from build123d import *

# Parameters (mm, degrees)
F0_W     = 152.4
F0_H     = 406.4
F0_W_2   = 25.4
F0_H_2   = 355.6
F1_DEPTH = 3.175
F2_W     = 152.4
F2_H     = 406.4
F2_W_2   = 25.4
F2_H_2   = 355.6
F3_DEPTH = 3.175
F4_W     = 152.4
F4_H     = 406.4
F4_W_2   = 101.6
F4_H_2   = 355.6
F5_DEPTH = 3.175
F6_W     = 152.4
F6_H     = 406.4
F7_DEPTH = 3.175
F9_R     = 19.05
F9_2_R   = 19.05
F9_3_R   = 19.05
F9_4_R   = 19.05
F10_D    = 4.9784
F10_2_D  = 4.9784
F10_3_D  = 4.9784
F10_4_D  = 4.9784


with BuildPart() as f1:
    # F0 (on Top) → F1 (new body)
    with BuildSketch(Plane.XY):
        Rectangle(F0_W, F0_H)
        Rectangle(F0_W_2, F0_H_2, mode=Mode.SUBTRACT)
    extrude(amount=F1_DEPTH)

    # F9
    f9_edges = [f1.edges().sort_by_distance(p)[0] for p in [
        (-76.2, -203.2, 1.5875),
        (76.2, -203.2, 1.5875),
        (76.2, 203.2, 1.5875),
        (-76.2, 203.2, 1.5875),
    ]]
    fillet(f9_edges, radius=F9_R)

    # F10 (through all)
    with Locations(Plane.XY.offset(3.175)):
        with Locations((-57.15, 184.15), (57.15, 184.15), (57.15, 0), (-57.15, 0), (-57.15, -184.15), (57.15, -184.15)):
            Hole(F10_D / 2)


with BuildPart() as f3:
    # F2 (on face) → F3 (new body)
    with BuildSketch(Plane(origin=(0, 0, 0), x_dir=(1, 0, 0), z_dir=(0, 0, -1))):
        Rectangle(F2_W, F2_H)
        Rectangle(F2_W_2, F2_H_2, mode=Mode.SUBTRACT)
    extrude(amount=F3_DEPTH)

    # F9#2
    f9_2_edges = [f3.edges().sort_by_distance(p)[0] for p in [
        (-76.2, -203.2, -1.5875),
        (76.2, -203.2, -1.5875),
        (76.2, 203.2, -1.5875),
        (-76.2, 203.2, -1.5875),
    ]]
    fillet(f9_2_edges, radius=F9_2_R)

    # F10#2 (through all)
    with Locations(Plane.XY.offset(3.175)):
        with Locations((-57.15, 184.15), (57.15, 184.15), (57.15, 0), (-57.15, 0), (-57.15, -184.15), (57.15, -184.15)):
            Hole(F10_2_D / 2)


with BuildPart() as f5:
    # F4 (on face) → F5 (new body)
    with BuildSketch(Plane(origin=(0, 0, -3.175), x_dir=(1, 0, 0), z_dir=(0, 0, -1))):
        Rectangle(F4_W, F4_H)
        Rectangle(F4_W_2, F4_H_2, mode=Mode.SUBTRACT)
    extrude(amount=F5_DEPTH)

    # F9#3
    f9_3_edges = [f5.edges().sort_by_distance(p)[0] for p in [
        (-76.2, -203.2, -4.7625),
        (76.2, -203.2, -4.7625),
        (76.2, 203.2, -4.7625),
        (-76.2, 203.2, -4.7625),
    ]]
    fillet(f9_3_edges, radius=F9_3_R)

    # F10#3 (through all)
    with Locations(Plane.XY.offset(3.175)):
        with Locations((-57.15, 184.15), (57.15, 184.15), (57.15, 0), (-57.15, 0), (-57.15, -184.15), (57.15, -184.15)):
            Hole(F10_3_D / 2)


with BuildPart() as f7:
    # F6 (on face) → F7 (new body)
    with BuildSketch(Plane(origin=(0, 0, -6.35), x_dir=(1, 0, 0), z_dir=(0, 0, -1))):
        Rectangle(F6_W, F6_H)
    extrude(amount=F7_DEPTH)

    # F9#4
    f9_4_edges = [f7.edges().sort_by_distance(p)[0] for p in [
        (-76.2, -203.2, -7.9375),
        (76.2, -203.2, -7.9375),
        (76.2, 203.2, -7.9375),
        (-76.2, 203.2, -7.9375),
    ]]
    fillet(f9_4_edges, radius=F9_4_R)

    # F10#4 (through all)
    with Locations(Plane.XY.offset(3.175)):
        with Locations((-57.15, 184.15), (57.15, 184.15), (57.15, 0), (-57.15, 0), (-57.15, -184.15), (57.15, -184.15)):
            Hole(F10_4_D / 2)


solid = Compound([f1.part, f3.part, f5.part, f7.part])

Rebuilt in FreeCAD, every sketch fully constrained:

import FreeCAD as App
import Part
import Sketcher
from FreeCAD import Vector
Q = App.Units.Quantity


def edges_at(feature, points):
    """Names of the edges that pass closest to the given points."""
    edges = feature.Shape.Edges
    near = lambda p: min(range(len(edges)), key=lambda i: edges[i].distToShape(Part.Vertex(*p))[0])
    return sorted({f"Edge{near(p) + 1}" for p in points})


def add_polygon(sketch, points):
    """Adds a closed chain of lines whose ends are joined by coincident constraints."""
    first, n = sketch.GeometryCount, len(points)
    for a, b in zip(points, points[1:] + points[:1]):
        sketch.addGeometry(Part.LineSegment(App.Vector(*a, 0), App.Vector(*b, 0)), False)
    for i in range(n):
        sketch.addConstraint(Sketcher.Constraint("Coincident", first + i, 2, first + (i + 1) % n, 1))

doc = App.newDocument("Part")
body = doc.addObject("PartDesign::Body", "Body")

sketch1 = doc.addObject("Sketcher::SketchObject", "Sketch")
body.addObject(sketch1)
sketch1.AttachmentSupport = (doc.XY_Plane, [""])
sketch1.MapMode = "FlatFace"
add_polygon(sketch1, [(-76, 203), (-76, -203), (76, -203), (76, 203)])
add_polygon(sketch1, [(13, -178), (-13, -178), (-13, 178), (13, 178)])
sketch1.addConstraint([
    Sketcher.Constraint("Vertical", 0),
    Sketcher.Constraint("Horizontal", 1),
    Sketcher.Constraint("Vertical", 2),
    Sketcher.Constraint("Horizontal", 3),
    Sketcher.Constraint("Horizontal", 4),
    Sketcher.Constraint("Vertical", 5),
    Sketcher.Constraint("Horizontal", 6),
    Sketcher.Constraint("Vertical", 7),
    Sketcher.Constraint("Symmetric", 0, 2, 2, 2, -1, 1),
    Sketcher.Constraint("Symmetric", 4, 2, 6, 2, -1, 1),
    Sketcher.Constraint("DistanceX", 1, 1, 1, 2, Q("6 in")),
    Sketcher.Constraint("DistanceX", 4, 2, 4, 1, Q("1 in")),
    Sketcher.Constraint("DistanceY", 0, 2, 0, 1, Q("16 in")),
    Sketcher.Constraint("DistanceY", 5, 1, 5, 2, Q("14 in")),
])
pad1 = doc.addObject("PartDesign::Pad", "Pad")
body.addObject(pad1)
pad1.Profile = sketch1
pad1.Length = Q("0.125 in")
doc.recompute()

fillet = doc.addObject("PartDesign::Fillet", "Fillet")
body.addObject(fillet)
fillet.Base = (pad1, edges_at(pad1, [
    (-76.2, -203.2, 1.587),
    (76.2, -203.2, 1.587),
    (76.2, 203.2, 1.587),
    (-76.2, 203.2, 1.587),
]))
fillet.Radius = Q("0.75 in")

sketch2 = doc.addObject("Sketcher::SketchObject", "Sketch001")
body.addObject(sketch2)
sketch2.AttachmentSupport = (doc.XY_Plane, [""])
sketch2.MapMode = "FlatFace"
sketch2.AttachmentOffset = App.Placement(Vector(0, 0, 0.125 * 25.4), App.Rotation())
sketch2.addGeometry([
    Part.Circle(Vector(-57.1, 184.2, 0), Vector(0, 0, 1), 2.5),
    Part.Circle(Vector(57.1, 184.2, 0), Vector(0, 0, 1), 2.5),
    Part.Circle(Vector(57.1, 0, 0), Vector(0, 0, 1), 2.5),
    Part.Circle(Vector(-57.1, 0, 0), Vector(0, 0, 1), 2.5),
    Part.Circle(Vector(-57.1, -184.2, 0), Vector(0, 0, 1), 2.5),
    Part.Circle(Vector(57.1, -184.2, 0), Vector(0, 0, 1), 2.5),
], False)
sketch2.addConstraint([
    Sketcher.Constraint("Equal", 0, 1),
    Sketcher.Constraint("Equal", 1, 2),
    Sketcher.Constraint("Equal", 2, 3),
    Sketcher.Constraint("Equal", 3, 4),
    Sketcher.Constraint("Equal", 4, 5),
    Sketcher.Constraint("Symmetric", 2, 3, 3, 3, -1, 1),
    Sketcher.Constraint("Symmetric", 1, 3, 4, 3, -1, 1),
    Sketcher.Constraint("Symmetric", 0, 3, 5, 3, -1, 1),
    Sketcher.Constraint("Symmetric", 0, 3, 1, 3, -2),
    Sketcher.Constraint("PointOnObject", 2, 3, -1),
    Sketcher.Constraint("Vertical", 1, 3, 2, 3),
    Sketcher.Constraint("Diameter", 0, Q("0.196 in")),
    Sketcher.Constraint("DistanceX", 0, 3, 1, 3, Q("4.5 in")),
    Sketcher.Constraint("DistanceY", 4, 3, 0, 3, Q("14.5 in")),
])
doc.recompute()
hole = doc.addObject("PartDesign::Hole", "Hole")
body.addObject(hole)
hole.Profile = sketch2
hole.ThreadType = "None"
hole.Diameter = Q("0.196 in")
hole.DepthType = "ThroughAll"
body2 = doc.addObject("PartDesign::Body", "Body001")

sketch3 = doc.addObject("Sketcher::SketchObject", "Sketch002")
body2.addObject(sketch3)
sketch3.AttachmentSupport = (doc.getObject("XY_Plane001"), [""])
sketch3.MapMode = "FlatFace"
add_polygon(sketch3, [(-76, -203), (-76, 203), (76, 203), (76, -203)])
add_polygon(sketch3, [(13, 178), (-13, 178), (-13, -178), (13, -178)])
sketch3.addConstraint([
    Sketcher.Constraint("Vertical", 0),
    Sketcher.Constraint("Horizontal", 1),
    Sketcher.Constraint("Vertical", 2),
    Sketcher.Constraint("Horizontal", 3),
    Sketcher.Constraint("Horizontal", 4),
    Sketcher.Constraint("Vertical", 5),
    Sketcher.Constraint("Horizontal", 6),
    Sketcher.Constraint("Vertical", 7),
    Sketcher.Constraint("Symmetric", 0, 2, 2, 2, -1, 1),
    Sketcher.Constraint("Symmetric", 4, 2, 6, 2, -1, 1),
    Sketcher.Constraint("DistanceX", 1, 1, 1, 2, Q("6 in")),
    Sketcher.Constraint("DistanceX", 4, 2, 4, 1, Q("1 in")),
    Sketcher.Constraint("DistanceY", 0, 1, 0, 2, Q("16 in")),
    Sketcher.Constraint("DistanceY", 5, 2, 5, 1, Q("14 in")),
])
pad2 = doc.addObject("PartDesign::Pad", "Pad001")
body2.addObject(pad2)
pad2.Profile = sketch3
pad2.Length = Q("0.125 in")
pad2.Reversed = True
doc.recompute()

fillet2 = doc.addObject("PartDesign::Fillet", "Fillet001")
body2.addObject(fillet2)
fillet2.Base = (pad2, edges_at(pad2, [
    (-76.2, -203.2, -1.587),
    (76.2, -203.2, -1.587),
    (76.2, 203.2, -1.587),
    (-76.2, 203.2, -1.587),
]))
fillet2.Radius = Q("0.75 in")

sketch4 = doc.addObject("Sketcher::SketchObject", "Sketch003")
body2.addObject(sketch4)
sketch4.AttachmentSupport = (doc.getObject("XY_Plane001"), [""])
sketch4.MapMode = "FlatFace"
sketch4.AttachmentOffset = App.Placement(Vector(0, 0, 0.125 * 25.4), App.Rotation())
sketch4.addGeometry([
    Part.Circle(Vector(-57.1, 184.2, 0), Vector(0, 0, 1), 2.5),
    Part.Circle(Vector(57.1, 184.2, 0), Vector(0, 0, 1), 2.5),
    Part.Circle(Vector(57.1, 0, 0), Vector(0, 0, 1), 2.5),
    Part.Circle(Vector(-57.1, 0, 0), Vector(0, 0, 1), 2.5),
    Part.Circle(Vector(-57.1, -184.2, 0), Vector(0, 0, 1), 2.5),
    Part.Circle(Vector(57.1, -184.2, 0), Vector(0, 0, 1), 2.5),
], False)
sketch4.addConstraint([
    Sketcher.Constraint("Equal", 0, 1),
    Sketcher.Constraint("Equal", 1, 2),
    Sketcher.Constraint("Equal", 2, 3),
    Sketcher.Constraint("Equal", 3, 4),
    Sketcher.Constraint("Equal", 4, 5),
    Sketcher.Constraint("Symmetric", 2, 3, 3, 3, -1, 1),
    Sketcher.Constraint("Symmetric", 1, 3, 4, 3, -1, 1),
    Sketcher.Constraint("Symmetric", 0, 3, 5, 3, -1, 1),
    Sketcher.Constraint("Symmetric", 0, 3, 1, 3, -2),
    Sketcher.Constraint("PointOnObject", 2, 3, -1),
    Sketcher.Constraint("Vertical", 1, 3, 2, 3),
    Sketcher.Constraint("Diameter", 0, Q("0.196 in")),
    Sketcher.Constraint("DistanceX", 0, 3, 1, 3, Q("4.5 in")),
    Sketcher.Constraint("DistanceY", 4, 3, 0, 3, Q("14.5 in")),
])
doc.recompute()
hole2 = doc.addObject("PartDesign::Hole", "Hole001")
body2.addObject(hole2)
hole2.Profile = sketch4
hole2.ThreadType = "None"
hole2.Diameter = Q("0.196 in")
hole2.DepthType = "ThroughAll"
body3 = doc.addObject("PartDesign::Body", "Body002")

sketch5 = doc.addObject("Sketcher::SketchObject", "Sketch004")
body3.addObject(sketch5)
sketch5.AttachmentSupport = (doc.getObject("XY_Plane002"), [""])
sketch5.MapMode = "FlatFace"
sketch5.AttachmentOffset = App.Placement(Vector(0, 0, -0.125 * 25.4), App.Rotation())
add_polygon(sketch5, [(-76, -203), (-76, 203), (76, 203), (76, -203)])
add_polygon(sketch5, [(51, 178), (-51, 178), (-51, -178), (51, -178)])
sketch5.addConstraint([
    Sketcher.Constraint("Vertical", 0),
    Sketcher.Constraint("Horizontal", 1),
    Sketcher.Constraint("Vertical", 2),
    Sketcher.Constraint("Horizontal", 3),
    Sketcher.Constraint("Horizontal", 4),
    Sketcher.Constraint("Vertical", 5),
    Sketcher.Constraint("Horizontal", 6),
    Sketcher.Constraint("Vertical", 7),
    Sketcher.Constraint("Symmetric", 0, 2, 2, 2, -1, 1),
    Sketcher.Constraint("Symmetric", 4, 2, 6, 2, -1, 1),
    Sketcher.Constraint("DistanceX", 1, 1, 1, 2, Q("6 in")),
    Sketcher.Constraint("DistanceX", 4, 2, 4, 1, Q("4 in")),
    Sketcher.Constraint("DistanceY", 0, 1, 0, 2, Q("16 in")),
    Sketcher.Constraint("DistanceY", 5, 2, 5, 1, Q("14 in")),
])
pad3 = doc.addObject("PartDesign::Pad", "Pad002")
body3.addObject(pad3)
pad3.Profile = sketch5
pad3.Length = Q("0.125 in")
pad3.Reversed = True
doc.recompute()

fillet3 = doc.addObject("PartDesign::Fillet", "Fillet002")
body3.addObject(fillet3)
fillet3.Base = (pad3, edges_at(pad3, [
    (-76.2, -203.2, -4.763),
    (76.2, -203.2, -4.763),
    (76.2, 203.2, -4.763),
    (-76.2, 203.2, -4.763),
]))
fillet3.Radius = Q("0.75 in")

sketch6 = doc.addObject("Sketcher::SketchObject", "Sketch005")
body3.addObject(sketch6)
sketch6.AttachmentSupport = (doc.getObject("XY_Plane002"), [""])
sketch6.MapMode = "FlatFace"
sketch6.AttachmentOffset = App.Placement(Vector(0, 0, 0.125 * 25.4), App.Rotation())
sketch6.addGeometry([
    Part.Circle(Vector(-57.1, 184.2, 0), Vector(0, 0, 1), 2.5),
    Part.Circle(Vector(57.1, 184.2, 0), Vector(0, 0, 1), 2.5),
    Part.Circle(Vector(57.1, 0, 0), Vector(0, 0, 1), 2.5),
    Part.Circle(Vector(-57.1, 0, 0), Vector(0, 0, 1), 2.5),
    Part.Circle(Vector(-57.1, -184.2, 0), Vector(0, 0, 1), 2.5),
    Part.Circle(Vector(57.1, -184.2, 0), Vector(0, 0, 1), 2.5),
], False)
sketch6.addConstraint([
    Sketcher.Constraint("Equal", 0, 1),
    Sketcher.Constraint("Equal", 1, 2),
    Sketcher.Constraint("Equal", 2, 3),
    Sketcher.Constraint("Equal", 3, 4),
    Sketcher.Constraint("Equal", 4, 5),
    Sketcher.Constraint("Symmetric", 2, 3, 3, 3, -1, 1),
    Sketcher.Constraint("Symmetric", 1, 3, 4, 3, -1, 1),
    Sketcher.Constraint("Symmetric", 0, 3, 5, 3, -1, 1),
    Sketcher.Constraint("Symmetric", 0, 3, 1, 3, -2),
    Sketcher.Constraint("PointOnObject", 2, 3, -1),
    Sketcher.Constraint("Vertical", 1, 3, 2, 3),
    Sketcher.Constraint("Diameter", 0, Q("0.196 in")),
    Sketcher.Constraint("DistanceX", 0, 3, 1, 3, Q("4.5 in")),
    Sketcher.Constraint("DistanceY", 4, 3, 0, 3, Q("14.5 in")),
])
doc.recompute()
hole3 = doc.addObject("PartDesign::Hole", "Hole002")
body3.addObject(hole3)
hole3.Profile = sketch6
hole3.ThreadType = "None"
hole3.Diameter = Q("0.196 in")
hole3.DepthType = "ThroughAll"
body4 = doc.addObject("PartDesign::Body", "Body003")

sketch7 = doc.addObject("Sketcher::SketchObject", "Sketch006")
body4.addObject(sketch7)
sketch7.AttachmentSupport = (doc.getObject("XY_Plane003"), [""])
sketch7.MapMode = "FlatFace"
sketch7.AttachmentOffset = App.Placement(Vector(0, 0, -0.25 * 25.4), App.Rotation())
add_polygon(sketch7, [(-76, -203), (-76, 203), (76, 203), (76, -203)])
sketch7.addConstraint([
    Sketcher.Constraint("Vertical", 0),
    Sketcher.Constraint("Horizontal", 1),
    Sketcher.Constraint("Vertical", 2),
    Sketcher.Constraint("Horizontal", 3),
    Sketcher.Constraint("Symmetric", 0, 2, 2, 2, -1, 1),
    Sketcher.Constraint("DistanceX", 1, 1, 1, 2, Q("6 in")),
    Sketcher.Constraint("DistanceY", 0, 1, 0, 2, Q("16 in")),
])
pad4 = doc.addObject("PartDesign::Pad", "Pad003")
body4.addObject(pad4)
pad4.Profile = sketch7
pad4.Length = Q("0.125 in")
pad4.Reversed = True
doc.recompute()

fillet4 = doc.addObject("PartDesign::Fillet", "Fillet003")
body4.addObject(fillet4)
fillet4.Base = (pad4, edges_at(pad4, [
    (-76.2, -203.2, -7.938),
    (76.2, -203.2, -7.938),
    (76.2, 203.2, -7.938),
    (-76.2, 203.2, -7.938),
]))
fillet4.Radius = Q("0.75 in")

sketch8 = doc.addObject("Sketcher::SketchObject", "Sketch007")
body4.addObject(sketch8)
sketch8.AttachmentSupport = (doc.getObject("XY_Plane003"), [""])
sketch8.MapMode = "FlatFace"
sketch8.AttachmentOffset = App.Placement(Vector(0, 0, 0.125 * 25.4), App.Rotation())
sketch8.addGeometry([
    Part.Circle(Vector(-57.1, 184.2, 0), Vector(0, 0, 1), 2.5),
    Part.Circle(Vector(57.1, 184.2, 0), Vector(0, 0, 1), 2.5),
    Part.Circle(Vector(57.1, 0, 0), Vector(0, 0, 1), 2.5),
    Part.Circle(Vector(-57.1, 0, 0), Vector(0, 0, 1), 2.5),
    Part.Circle(Vector(-57.1, -184.2, 0), Vector(0, 0, 1), 2.5),
    Part.Circle(Vector(57.1, -184.2, 0), Vector(0, 0, 1), 2.5),
], False)
sketch8.addConstraint([
    Sketcher.Constraint("Equal", 0, 1),
    Sketcher.Constraint("Equal", 1, 2),
    Sketcher.Constraint("Equal", 2, 3),
    Sketcher.Constraint("Equal", 3, 4),
    Sketcher.Constraint("Equal", 4, 5),
    Sketcher.Constraint("Symmetric", 2, 3, 3, 3, -1, 1),
    Sketcher.Constraint("Symmetric", 1, 3, 4, 3, -1, 1),
    Sketcher.Constraint("Symmetric", 0, 3, 5, 3, -1, 1),
    Sketcher.Constraint("Symmetric", 0, 3, 1, 3, -2),
    Sketcher.Constraint("PointOnObject", 2, 3, -1),
    Sketcher.Constraint("Vertical", 1, 3, 2, 3),
    Sketcher.Constraint("Diameter", 0, Q("0.196 in")),
    Sketcher.Constraint("DistanceX", 0, 3, 1, 3, Q("4.5 in")),
    Sketcher.Constraint("DistanceY", 4, 3, 0, 3, Q("14.5 in")),
])
doc.recompute()
hole4 = doc.addObject("PartDesign::Hole", "Hole003")
body4.addObject(hole4)
hole4.Profile = sketch8
hole4.ThreadType = "None"
hole4.Diameter = Q("0.196 in")
hole4.DepthType = "ThroughAll"

doc.recompute()
